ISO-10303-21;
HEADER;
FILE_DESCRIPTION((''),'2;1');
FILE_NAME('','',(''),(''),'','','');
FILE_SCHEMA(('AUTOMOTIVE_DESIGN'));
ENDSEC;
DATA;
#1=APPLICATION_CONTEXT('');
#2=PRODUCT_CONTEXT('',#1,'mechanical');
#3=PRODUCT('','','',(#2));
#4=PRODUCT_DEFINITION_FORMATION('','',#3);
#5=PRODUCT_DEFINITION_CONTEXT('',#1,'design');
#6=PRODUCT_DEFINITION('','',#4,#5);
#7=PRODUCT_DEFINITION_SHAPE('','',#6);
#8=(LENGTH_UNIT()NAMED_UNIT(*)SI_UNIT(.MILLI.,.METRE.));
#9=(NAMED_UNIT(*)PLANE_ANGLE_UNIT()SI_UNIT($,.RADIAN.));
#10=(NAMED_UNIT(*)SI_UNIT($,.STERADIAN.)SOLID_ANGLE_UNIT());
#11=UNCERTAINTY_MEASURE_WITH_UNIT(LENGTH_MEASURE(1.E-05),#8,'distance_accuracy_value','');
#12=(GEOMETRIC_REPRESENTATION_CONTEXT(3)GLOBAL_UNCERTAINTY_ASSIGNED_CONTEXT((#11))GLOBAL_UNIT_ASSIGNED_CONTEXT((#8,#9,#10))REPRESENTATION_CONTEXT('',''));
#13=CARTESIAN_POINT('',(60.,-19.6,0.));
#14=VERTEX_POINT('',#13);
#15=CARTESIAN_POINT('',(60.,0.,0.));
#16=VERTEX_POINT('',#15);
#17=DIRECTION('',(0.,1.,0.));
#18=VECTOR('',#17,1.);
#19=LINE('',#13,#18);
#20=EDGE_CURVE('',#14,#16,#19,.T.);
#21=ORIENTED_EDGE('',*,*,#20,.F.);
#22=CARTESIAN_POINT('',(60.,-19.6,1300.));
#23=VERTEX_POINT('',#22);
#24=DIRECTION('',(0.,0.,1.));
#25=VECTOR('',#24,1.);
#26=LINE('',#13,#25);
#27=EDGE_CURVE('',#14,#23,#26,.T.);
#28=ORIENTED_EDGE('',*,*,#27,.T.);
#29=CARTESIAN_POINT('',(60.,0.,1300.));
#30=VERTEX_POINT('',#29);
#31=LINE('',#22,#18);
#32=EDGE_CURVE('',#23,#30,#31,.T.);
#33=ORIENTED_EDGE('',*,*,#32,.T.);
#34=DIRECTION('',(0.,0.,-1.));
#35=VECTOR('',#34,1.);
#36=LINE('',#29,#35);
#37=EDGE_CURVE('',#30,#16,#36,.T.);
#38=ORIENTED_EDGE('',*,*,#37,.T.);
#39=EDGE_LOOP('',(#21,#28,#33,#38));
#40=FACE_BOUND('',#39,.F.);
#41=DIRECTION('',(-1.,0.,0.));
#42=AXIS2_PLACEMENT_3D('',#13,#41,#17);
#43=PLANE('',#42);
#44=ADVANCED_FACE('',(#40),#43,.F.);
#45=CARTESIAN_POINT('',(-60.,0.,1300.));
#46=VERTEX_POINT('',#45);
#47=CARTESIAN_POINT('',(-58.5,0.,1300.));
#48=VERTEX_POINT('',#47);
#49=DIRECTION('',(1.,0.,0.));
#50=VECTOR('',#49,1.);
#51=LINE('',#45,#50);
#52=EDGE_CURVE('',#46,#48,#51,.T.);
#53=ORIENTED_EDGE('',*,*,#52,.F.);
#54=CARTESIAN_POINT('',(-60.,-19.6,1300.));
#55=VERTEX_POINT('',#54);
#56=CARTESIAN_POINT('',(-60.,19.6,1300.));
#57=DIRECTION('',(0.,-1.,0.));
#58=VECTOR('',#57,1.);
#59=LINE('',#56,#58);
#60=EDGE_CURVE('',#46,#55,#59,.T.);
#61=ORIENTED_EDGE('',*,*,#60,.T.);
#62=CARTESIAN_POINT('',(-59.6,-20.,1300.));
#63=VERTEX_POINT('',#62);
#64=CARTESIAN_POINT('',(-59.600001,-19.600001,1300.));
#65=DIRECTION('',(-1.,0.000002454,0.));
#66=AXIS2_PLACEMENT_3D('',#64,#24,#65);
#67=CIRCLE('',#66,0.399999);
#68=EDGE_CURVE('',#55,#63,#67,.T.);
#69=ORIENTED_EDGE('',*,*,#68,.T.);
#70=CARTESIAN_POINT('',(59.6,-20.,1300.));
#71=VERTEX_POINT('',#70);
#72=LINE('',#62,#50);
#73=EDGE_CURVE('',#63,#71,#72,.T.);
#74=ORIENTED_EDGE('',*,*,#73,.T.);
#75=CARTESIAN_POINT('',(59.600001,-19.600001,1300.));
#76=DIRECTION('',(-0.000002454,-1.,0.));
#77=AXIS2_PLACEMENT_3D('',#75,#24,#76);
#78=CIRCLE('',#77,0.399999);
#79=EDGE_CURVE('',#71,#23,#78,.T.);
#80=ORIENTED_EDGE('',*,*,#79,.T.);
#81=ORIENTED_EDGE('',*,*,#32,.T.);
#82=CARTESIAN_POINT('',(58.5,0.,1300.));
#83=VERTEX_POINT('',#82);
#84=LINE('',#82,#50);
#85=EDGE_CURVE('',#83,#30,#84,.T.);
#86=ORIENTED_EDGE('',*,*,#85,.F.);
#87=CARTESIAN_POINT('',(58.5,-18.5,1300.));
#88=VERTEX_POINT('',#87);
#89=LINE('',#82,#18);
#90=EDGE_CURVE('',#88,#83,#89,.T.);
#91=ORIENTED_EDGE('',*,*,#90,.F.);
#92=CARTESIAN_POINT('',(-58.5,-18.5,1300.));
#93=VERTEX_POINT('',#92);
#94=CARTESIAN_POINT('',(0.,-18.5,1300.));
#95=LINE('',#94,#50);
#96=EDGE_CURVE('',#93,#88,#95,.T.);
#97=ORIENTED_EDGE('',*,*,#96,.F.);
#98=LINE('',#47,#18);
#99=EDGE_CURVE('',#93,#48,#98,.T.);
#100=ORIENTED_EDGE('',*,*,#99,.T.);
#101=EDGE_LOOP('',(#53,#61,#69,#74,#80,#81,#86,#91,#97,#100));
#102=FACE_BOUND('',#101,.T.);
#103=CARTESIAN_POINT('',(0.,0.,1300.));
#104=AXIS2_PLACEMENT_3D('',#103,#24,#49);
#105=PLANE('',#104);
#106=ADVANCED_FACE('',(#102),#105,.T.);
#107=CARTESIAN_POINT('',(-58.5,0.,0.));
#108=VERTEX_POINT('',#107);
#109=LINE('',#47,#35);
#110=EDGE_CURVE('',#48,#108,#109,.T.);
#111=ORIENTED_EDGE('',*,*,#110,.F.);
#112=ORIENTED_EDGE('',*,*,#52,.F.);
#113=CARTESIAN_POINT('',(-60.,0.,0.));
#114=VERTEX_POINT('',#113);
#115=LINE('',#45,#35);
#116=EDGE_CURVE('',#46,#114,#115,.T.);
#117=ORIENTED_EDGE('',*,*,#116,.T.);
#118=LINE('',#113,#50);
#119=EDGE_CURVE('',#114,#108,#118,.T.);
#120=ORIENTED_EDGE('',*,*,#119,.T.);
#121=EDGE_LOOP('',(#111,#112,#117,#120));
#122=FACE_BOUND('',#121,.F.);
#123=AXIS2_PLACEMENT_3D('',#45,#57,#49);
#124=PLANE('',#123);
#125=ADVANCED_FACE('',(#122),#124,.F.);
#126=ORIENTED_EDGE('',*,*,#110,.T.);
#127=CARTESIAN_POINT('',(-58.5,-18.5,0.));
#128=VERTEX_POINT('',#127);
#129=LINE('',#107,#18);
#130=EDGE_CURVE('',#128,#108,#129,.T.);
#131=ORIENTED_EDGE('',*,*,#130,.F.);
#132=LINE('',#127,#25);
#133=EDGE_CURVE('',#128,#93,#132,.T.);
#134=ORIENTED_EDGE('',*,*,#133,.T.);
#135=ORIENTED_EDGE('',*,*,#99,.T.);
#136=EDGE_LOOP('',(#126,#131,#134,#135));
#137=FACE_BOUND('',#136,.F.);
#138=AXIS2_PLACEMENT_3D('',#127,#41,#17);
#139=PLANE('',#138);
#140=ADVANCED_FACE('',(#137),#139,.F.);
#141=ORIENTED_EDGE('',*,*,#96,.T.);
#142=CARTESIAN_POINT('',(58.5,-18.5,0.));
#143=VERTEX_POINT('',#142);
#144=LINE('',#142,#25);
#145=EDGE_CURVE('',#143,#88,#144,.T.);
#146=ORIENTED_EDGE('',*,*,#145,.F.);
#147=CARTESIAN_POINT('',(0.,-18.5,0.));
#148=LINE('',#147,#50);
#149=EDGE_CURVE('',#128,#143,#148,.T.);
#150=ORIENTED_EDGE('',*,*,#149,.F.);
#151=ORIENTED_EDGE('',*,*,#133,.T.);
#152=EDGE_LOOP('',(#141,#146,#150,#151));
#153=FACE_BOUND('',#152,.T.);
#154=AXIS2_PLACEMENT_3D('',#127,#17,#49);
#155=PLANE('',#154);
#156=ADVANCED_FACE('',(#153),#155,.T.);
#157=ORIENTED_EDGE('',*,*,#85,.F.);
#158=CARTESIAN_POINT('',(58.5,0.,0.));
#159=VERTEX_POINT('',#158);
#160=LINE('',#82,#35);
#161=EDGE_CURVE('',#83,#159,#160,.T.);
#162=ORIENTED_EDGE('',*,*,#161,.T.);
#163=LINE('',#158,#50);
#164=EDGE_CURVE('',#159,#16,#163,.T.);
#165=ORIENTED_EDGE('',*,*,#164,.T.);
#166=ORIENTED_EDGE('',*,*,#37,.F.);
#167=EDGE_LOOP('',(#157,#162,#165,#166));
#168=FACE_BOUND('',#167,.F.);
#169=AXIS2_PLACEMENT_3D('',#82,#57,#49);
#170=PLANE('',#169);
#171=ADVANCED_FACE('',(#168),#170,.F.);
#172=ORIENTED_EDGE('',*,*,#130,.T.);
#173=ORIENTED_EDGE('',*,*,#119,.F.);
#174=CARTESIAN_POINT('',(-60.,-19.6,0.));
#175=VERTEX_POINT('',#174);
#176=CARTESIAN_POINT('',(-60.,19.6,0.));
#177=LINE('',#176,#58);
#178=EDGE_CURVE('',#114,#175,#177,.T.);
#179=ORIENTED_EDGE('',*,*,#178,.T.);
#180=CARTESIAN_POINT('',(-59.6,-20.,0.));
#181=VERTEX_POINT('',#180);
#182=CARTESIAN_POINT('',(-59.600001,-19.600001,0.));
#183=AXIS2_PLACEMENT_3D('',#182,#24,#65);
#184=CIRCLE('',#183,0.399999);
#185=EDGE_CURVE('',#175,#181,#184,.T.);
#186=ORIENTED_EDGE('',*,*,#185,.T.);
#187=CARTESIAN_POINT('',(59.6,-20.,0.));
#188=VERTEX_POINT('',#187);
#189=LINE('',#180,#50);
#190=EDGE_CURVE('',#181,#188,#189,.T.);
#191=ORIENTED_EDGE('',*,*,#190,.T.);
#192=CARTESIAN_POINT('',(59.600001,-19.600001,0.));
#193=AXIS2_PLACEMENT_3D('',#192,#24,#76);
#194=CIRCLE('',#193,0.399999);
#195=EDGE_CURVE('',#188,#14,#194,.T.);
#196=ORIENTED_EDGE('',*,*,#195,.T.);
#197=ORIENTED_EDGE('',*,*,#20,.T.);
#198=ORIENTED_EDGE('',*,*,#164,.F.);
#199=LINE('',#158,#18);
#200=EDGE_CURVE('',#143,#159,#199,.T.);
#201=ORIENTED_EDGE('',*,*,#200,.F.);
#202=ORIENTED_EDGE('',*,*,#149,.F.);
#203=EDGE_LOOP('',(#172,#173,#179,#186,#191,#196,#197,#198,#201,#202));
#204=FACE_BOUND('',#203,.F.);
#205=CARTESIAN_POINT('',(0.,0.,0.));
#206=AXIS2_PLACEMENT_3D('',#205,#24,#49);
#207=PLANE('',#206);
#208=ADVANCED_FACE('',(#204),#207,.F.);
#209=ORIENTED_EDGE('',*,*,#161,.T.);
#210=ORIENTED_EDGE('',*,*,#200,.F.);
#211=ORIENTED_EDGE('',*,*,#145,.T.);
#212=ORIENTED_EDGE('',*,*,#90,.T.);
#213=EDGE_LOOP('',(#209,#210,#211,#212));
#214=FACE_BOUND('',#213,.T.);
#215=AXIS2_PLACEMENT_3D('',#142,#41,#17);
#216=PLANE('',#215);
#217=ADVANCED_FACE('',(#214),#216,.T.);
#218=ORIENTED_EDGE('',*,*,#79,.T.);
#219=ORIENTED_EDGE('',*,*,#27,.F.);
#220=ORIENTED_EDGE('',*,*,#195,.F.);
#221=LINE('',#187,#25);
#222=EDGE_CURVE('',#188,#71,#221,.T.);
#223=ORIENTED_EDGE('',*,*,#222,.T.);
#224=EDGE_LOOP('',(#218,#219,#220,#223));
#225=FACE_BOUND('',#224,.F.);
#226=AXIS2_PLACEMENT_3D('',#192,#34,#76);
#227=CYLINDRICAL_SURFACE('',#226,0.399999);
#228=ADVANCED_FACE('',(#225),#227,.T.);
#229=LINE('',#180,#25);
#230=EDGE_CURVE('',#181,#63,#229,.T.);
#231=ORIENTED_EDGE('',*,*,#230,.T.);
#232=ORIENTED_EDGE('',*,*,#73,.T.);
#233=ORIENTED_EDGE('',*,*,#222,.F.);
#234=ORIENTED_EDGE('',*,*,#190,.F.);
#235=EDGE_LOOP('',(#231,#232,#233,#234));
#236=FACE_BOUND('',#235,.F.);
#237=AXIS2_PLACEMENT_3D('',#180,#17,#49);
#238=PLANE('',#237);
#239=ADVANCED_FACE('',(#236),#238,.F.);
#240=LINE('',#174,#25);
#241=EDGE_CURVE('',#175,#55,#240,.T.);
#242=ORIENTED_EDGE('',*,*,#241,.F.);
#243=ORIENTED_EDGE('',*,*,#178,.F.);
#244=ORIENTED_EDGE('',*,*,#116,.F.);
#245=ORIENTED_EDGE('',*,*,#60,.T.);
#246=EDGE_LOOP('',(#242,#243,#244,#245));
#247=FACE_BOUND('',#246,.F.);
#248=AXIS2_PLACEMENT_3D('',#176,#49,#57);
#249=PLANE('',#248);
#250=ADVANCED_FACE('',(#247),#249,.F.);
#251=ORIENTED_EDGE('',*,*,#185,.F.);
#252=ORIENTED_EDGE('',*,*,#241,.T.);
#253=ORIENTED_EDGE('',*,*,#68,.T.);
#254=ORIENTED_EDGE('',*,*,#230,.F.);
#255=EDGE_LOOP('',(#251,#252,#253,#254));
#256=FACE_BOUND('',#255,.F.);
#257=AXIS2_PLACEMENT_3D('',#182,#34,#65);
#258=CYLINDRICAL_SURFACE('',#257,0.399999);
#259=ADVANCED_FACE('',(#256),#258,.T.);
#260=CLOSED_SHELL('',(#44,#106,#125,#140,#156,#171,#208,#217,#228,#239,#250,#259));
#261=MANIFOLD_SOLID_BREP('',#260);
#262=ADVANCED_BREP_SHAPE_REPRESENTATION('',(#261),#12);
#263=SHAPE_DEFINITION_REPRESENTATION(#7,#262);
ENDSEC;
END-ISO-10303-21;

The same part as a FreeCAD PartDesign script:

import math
import FreeCAD as App
import Part
import Sketcher


def add_polygon(sketch, points):
    """Adds a closed chain of lines whose ends are joined by coincident constraints."""
    first, n = sketch.GeometryCount, len(points)
    for a, b in zip(points, points[1:] + points[:1]):
        sketch.addGeometry(Part.LineSegment(App.Vector(*a, 0), App.Vector(*b, 0)), False)
    for i in range(n):
        sketch.addConstraint(Sketcher.Constraint("Coincident", first + i, 2, first + (i + 1) % n, 1))

doc = App.newDocument("Part")
body = doc.addObject("PartDesign::Body", "Body")

sketch1 = body.newObject("Sketcher::SketchObject", "Sketch")
sketch1.AttachmentSupport = (doc.getObject("XY_Plane"), [""])
sketch1.MapMode = "FlatFace"
sketch1.addGeometry(Part.ArcOfCircle(Part.Circle(App.Vector(59.6, 19.6, 0), App.Vector(0, 0, 1), 0.4), math.radians(0), math.radians(90)), False)
sketch1.addGeometry(Part.LineSegment(App.Vector(59.6, 20, 0), App.Vector(-59.6, 20, 0)), False)
sketch1.addGeometry(Part.ArcOfCircle(Part.Circle(App.Vector(-59.6, 19.6, 0), App.Vector(0, 0, 1), 0.4), math.radians(90), math.radians(180)), False)
sketch1.addGeometry(Part.LineSegment(App.Vector(-60, 19.6, 0), App.Vector(-60, -19.6, 0)), False)
sketch1.addGeometry(Part.ArcOfCircle(Part.Circle(App.Vector(-59.6, -19.6, 0), App.Vector(0, 0, 1), 0.4), math.radians(180), math.radians(270)), False)
sketch1.addGeometry(Part.LineSegment(App.Vector(-59.6, -20, 0), App.Vector(59.6, -20, 0)), False)
sketch1.addGeometry(Part.ArcOfCircle(Part.Circle(App.Vector(59.6, -19.6, 0), App.Vector(0, 0, 1), 0.4), math.radians(-90), math.radians(0)), False)
sketch1.addGeometry(Part.LineSegment(App.Vector(60, -19.6, 0), App.Vector(60, 19.6, 0)), False)
add_polygon(sketch1, [(58.5, -18.5), (-58.5, -18.5), (-58.5, 18.5), (58.5, 18.5)])
sketch1.addConstraint(Sketcher.Constraint("Coincident", 0, 2, 1, 1))
sketch1.addConstraint(Sketcher.Constraint("Coincident", 1, 2, 2, 1))
sketch1.addConstraint(Sketcher.Constraint("Coincident", 2, 2, 3, 1))
sketch1.addConstraint(Sketcher.Constraint("Coincident", 3, 2, 4, 1))
sketch1.addConstraint(Sketcher.Constraint("Coincident", 4, 2, 5, 1))
sketch1.addConstraint(Sketcher.Constraint("Coincident", 5, 2, 6, 1))
sketch1.addConstraint(Sketcher.Constraint("Coincident", 6, 2, 7, 1))
sketch1.addConstraint(Sketcher.Constraint("Coincident", 7, 2, 0, 1))
sketch1.addConstraint(Sketcher.Constraint("Horizontal", 1))
sketch1.addConstraint(Sketcher.Constraint("Vertical", 3))
sketch1.addConstraint(Sketcher.Constraint("Horizontal", 5))
sketch1.addConstraint(Sketcher.Constraint("Vertical", 7))
sketch1.addConstraint(Sketcher.Constraint("Horizontal", 8))
sketch1.addConstraint(Sketcher.Constraint("Vertical", 9))
sketch1.addConstraint(Sketcher.Constraint("Horizontal", 10))
sketch1.addConstraint(Sketcher.Constraint("Vertical", 11))
sketch1.addConstraint(Sketcher.Constraint("Equal", 0, 2))
sketch1.addConstraint(Sketcher.Constraint("Equal", 2, 4))
sketch1.addConstraint(Sketcher.Constraint("Equal", 4, 6))
sketch1.addConstraint(Sketcher.Constraint("Symmetric", 0, 3, 4, 3, -1, 1))
sketch1.addConstraint(Sketcher.Constraint("Symmetric", 8, 2, 10, 2, -1, 1))
sketch1.addConstraint(Sketcher.Constraint("Horizontal", 0, 3, 2, 2))
sketch1.addConstraint(Sketcher.Constraint("Horizontal", 6, 3, 3, 2))
sketch1.addConstraint(Sketcher.Constraint("Horizontal", 3, 2, 6, 2))
sketch1.addConstraint(Sketcher.Constraint("Horizontal", 2, 2, 7, 2))
sketch1.addConstraint(Sketcher.Constraint("Vertical", 6, 3, 0, 2))
sketch1.addConstraint(Sketcher.Constraint("Vertical", 4, 3, 1, 2))
sketch1.addConstraint(Sketcher.Constraint("Vertical", 1, 2, 4, 2))
sketch1.addConstraint(Sketcher.Constraint("Vertical", 0, 2, 5, 2))
sketch1.addConstraint(Sketcher.Constraint("Radius", 0, 0.399999))
sketch1.addConstraint(Sketcher.Constraint("DistanceX", 8, 2, 8, 1, 117.0))
sketch1.addConstraint(Sketcher.Constraint("DistanceY", 9, 1, 9, 2, 37.0))
sketch1.addConstraint(Sketcher.Constraint("DistanceX", 1, 2, 1, 1, 119.2))
sketch1.addConstraint(Sketcher.Constraint("DistanceY", 3, 2, 3, 1, 39.2))
pad1 = body.newObject("PartDesign::Pad", "Pad")
pad1.Profile = sketch1
pad1.Length = 1300

sketch2 = body.newObject("Sketcher::SketchObject", "Sketch001")
sketch2.AttachmentSupport = (doc.getObject("XY_Plane"), [""])
sketch2.MapMode = "FlatFace"
sketch2.AttachmentOffset = App.Placement(App.Vector(0, 0, 1300), App.Rotation())
sketch2.addGeometry(Part.LineSegment(App.Vector(-60, 0, 0), App.Vector(-58.5, 0, 0)), False)
sketch2.addGeometry(Part.LineSegment(App.Vector(-58.5, 0, 0), App.Vector(-58.5, 18.5, 0)), False)
sketch2.addGeometry(Part.LineSegment(App.Vector(-58.5, 18.5, 0), App.Vector(58.5, 18.5, 0)), False)
sketch2.addGeometry(Part.LineSegment(App.Vector(58.5, 18.5, 0), App.Vector(58.5, 0, 0)), False)
sketch2.addGeometry(Part.LineSegment(App.Vector(58.5, 0, 0), App.Vector(60, 0, 0)), False)
sketch2.addGeometry(Part.LineSegment(App.Vector(60, 0, 0), App.Vector(60, 19.6, 0)), False)
sketch2.addGeometry(Part.ArcOfCircle(Part.Circle(App.Vector(59.6, 19.6, 0), App.Vector(0, 0, 1), 0.4), math.radians(0), math.radians(90)), False)
sketch2.addGeometry(Part.LineSegment(App.Vector(59.6, 20, 0), App.Vector(-59.6, 20, 0)), False)
sketch2.addGeometry(Part.ArcOfCircle(Part.Circle(App.Vector(-59.6, 19.6, 0), App.Vector(0, 0, 1), 0.4), math.radians(90), math.radians(180)), False)
sketch2.addGeometry(Part.LineSegment(App.Vector(-60, 19.6, 0), App.Vector(-60, 0, 0)), False)
sketch2.addConstraint(Sketcher.Constraint("Coincident", 0, 2, 1, 1))
sketch2.addConstraint(Sketcher.Constraint("Coincident", 1, 2, 2, 1))
sketch2.addConstraint(Sketcher.Constraint("Coincident", 2, 2, 3, 1))
sketch2.addConstraint(Sketcher.Constraint("Coincident", 3, 2, 4, 1))
sketch2.addConstraint(Sketcher.Constraint("Coincident", 4, 2, 5, 1))
sketch2.addConstraint(Sketcher.Constraint("Coincident", 5, 2, 6, 1))
sketch2.addConstraint(Sketcher.Constraint("Coincident", 6, 2, 7, 1))
sketch2.addConstraint(Sketcher.Constraint("Coincident", 7, 2, 8, 1))
sketch2.addConstraint(Sketcher.Constraint("Coincident", 8, 2, 9, 1))
sketch2.addConstraint(Sketcher.Constraint("Coincident", 9, 2, 0, 1))
sketch2.addConstraint(Sketcher.Constraint("Horizontal", 0))
sketch2.addConstraint(Sketcher.Constraint("Vertical", 1))
sketch2.addConstraint(Sketcher.Constraint("Horizontal", 2))
sketch2.addConstraint(Sketcher.Constraint("Vertical", 3))
sketch2.addConstraint(Sketcher.Constraint("Horizontal", 4))
sketch2.addConstraint(Sketcher.Constraint("Vertical", 5))
sketch2.addConstraint(Sketcher.Constraint("Horizontal", 7))
sketch2.addConstraint(Sketcher.Constraint("Vertical", 9))
sketch2.addConstraint(Sketcher.Constraint("Equal", 6, 8))
sketch2.addConstraint(Sketcher.Constraint("Symmetric", 0, 2, 3, 2, -1, 1))
sketch2.addConstraint(Sketcher.Constraint("Symmetric", 5, 2, 8, 2, -2))
sketch2.addConstraint(Sketcher.Constraint("PointOnObject", 0, 2, -1))
sketch2.addConstraint(Sketcher.Constraint("Horizontal", 8, 3, 5, 2))
sketch2.addConstraint(Sketcher.Constraint("Vertical", 8, 3, 7, 2))
sketch2.addConstraint(Sketcher.Constraint("Radius", 6, 0.399999))
sketch2.addConstraint(Sketcher.Constraint("DistanceX", 2, 1, 2, 2, 117.0))
sketch2.addConstraint(Sketcher.Constraint("DistanceX", 0, 1, 0, 2, 1.5))
sketch2.addConstraint(Sketcher.Constraint("DistanceX", 7, 2, 7, 1, 119.2))
sketch2.addConstraint(Sketcher.Constraint("DistanceY", 1, 1, 1, 2, 18.5))
sketch2.addConstraint(Sketcher.Constraint("DistanceY", 5, 1, 5, 2, 19.6))
pocket1 = body.newObject("PartDesign::Pocket", "Pocket")
pocket1.Profile = sketch2
pocket1.Length = 1300

doc.recompute()
